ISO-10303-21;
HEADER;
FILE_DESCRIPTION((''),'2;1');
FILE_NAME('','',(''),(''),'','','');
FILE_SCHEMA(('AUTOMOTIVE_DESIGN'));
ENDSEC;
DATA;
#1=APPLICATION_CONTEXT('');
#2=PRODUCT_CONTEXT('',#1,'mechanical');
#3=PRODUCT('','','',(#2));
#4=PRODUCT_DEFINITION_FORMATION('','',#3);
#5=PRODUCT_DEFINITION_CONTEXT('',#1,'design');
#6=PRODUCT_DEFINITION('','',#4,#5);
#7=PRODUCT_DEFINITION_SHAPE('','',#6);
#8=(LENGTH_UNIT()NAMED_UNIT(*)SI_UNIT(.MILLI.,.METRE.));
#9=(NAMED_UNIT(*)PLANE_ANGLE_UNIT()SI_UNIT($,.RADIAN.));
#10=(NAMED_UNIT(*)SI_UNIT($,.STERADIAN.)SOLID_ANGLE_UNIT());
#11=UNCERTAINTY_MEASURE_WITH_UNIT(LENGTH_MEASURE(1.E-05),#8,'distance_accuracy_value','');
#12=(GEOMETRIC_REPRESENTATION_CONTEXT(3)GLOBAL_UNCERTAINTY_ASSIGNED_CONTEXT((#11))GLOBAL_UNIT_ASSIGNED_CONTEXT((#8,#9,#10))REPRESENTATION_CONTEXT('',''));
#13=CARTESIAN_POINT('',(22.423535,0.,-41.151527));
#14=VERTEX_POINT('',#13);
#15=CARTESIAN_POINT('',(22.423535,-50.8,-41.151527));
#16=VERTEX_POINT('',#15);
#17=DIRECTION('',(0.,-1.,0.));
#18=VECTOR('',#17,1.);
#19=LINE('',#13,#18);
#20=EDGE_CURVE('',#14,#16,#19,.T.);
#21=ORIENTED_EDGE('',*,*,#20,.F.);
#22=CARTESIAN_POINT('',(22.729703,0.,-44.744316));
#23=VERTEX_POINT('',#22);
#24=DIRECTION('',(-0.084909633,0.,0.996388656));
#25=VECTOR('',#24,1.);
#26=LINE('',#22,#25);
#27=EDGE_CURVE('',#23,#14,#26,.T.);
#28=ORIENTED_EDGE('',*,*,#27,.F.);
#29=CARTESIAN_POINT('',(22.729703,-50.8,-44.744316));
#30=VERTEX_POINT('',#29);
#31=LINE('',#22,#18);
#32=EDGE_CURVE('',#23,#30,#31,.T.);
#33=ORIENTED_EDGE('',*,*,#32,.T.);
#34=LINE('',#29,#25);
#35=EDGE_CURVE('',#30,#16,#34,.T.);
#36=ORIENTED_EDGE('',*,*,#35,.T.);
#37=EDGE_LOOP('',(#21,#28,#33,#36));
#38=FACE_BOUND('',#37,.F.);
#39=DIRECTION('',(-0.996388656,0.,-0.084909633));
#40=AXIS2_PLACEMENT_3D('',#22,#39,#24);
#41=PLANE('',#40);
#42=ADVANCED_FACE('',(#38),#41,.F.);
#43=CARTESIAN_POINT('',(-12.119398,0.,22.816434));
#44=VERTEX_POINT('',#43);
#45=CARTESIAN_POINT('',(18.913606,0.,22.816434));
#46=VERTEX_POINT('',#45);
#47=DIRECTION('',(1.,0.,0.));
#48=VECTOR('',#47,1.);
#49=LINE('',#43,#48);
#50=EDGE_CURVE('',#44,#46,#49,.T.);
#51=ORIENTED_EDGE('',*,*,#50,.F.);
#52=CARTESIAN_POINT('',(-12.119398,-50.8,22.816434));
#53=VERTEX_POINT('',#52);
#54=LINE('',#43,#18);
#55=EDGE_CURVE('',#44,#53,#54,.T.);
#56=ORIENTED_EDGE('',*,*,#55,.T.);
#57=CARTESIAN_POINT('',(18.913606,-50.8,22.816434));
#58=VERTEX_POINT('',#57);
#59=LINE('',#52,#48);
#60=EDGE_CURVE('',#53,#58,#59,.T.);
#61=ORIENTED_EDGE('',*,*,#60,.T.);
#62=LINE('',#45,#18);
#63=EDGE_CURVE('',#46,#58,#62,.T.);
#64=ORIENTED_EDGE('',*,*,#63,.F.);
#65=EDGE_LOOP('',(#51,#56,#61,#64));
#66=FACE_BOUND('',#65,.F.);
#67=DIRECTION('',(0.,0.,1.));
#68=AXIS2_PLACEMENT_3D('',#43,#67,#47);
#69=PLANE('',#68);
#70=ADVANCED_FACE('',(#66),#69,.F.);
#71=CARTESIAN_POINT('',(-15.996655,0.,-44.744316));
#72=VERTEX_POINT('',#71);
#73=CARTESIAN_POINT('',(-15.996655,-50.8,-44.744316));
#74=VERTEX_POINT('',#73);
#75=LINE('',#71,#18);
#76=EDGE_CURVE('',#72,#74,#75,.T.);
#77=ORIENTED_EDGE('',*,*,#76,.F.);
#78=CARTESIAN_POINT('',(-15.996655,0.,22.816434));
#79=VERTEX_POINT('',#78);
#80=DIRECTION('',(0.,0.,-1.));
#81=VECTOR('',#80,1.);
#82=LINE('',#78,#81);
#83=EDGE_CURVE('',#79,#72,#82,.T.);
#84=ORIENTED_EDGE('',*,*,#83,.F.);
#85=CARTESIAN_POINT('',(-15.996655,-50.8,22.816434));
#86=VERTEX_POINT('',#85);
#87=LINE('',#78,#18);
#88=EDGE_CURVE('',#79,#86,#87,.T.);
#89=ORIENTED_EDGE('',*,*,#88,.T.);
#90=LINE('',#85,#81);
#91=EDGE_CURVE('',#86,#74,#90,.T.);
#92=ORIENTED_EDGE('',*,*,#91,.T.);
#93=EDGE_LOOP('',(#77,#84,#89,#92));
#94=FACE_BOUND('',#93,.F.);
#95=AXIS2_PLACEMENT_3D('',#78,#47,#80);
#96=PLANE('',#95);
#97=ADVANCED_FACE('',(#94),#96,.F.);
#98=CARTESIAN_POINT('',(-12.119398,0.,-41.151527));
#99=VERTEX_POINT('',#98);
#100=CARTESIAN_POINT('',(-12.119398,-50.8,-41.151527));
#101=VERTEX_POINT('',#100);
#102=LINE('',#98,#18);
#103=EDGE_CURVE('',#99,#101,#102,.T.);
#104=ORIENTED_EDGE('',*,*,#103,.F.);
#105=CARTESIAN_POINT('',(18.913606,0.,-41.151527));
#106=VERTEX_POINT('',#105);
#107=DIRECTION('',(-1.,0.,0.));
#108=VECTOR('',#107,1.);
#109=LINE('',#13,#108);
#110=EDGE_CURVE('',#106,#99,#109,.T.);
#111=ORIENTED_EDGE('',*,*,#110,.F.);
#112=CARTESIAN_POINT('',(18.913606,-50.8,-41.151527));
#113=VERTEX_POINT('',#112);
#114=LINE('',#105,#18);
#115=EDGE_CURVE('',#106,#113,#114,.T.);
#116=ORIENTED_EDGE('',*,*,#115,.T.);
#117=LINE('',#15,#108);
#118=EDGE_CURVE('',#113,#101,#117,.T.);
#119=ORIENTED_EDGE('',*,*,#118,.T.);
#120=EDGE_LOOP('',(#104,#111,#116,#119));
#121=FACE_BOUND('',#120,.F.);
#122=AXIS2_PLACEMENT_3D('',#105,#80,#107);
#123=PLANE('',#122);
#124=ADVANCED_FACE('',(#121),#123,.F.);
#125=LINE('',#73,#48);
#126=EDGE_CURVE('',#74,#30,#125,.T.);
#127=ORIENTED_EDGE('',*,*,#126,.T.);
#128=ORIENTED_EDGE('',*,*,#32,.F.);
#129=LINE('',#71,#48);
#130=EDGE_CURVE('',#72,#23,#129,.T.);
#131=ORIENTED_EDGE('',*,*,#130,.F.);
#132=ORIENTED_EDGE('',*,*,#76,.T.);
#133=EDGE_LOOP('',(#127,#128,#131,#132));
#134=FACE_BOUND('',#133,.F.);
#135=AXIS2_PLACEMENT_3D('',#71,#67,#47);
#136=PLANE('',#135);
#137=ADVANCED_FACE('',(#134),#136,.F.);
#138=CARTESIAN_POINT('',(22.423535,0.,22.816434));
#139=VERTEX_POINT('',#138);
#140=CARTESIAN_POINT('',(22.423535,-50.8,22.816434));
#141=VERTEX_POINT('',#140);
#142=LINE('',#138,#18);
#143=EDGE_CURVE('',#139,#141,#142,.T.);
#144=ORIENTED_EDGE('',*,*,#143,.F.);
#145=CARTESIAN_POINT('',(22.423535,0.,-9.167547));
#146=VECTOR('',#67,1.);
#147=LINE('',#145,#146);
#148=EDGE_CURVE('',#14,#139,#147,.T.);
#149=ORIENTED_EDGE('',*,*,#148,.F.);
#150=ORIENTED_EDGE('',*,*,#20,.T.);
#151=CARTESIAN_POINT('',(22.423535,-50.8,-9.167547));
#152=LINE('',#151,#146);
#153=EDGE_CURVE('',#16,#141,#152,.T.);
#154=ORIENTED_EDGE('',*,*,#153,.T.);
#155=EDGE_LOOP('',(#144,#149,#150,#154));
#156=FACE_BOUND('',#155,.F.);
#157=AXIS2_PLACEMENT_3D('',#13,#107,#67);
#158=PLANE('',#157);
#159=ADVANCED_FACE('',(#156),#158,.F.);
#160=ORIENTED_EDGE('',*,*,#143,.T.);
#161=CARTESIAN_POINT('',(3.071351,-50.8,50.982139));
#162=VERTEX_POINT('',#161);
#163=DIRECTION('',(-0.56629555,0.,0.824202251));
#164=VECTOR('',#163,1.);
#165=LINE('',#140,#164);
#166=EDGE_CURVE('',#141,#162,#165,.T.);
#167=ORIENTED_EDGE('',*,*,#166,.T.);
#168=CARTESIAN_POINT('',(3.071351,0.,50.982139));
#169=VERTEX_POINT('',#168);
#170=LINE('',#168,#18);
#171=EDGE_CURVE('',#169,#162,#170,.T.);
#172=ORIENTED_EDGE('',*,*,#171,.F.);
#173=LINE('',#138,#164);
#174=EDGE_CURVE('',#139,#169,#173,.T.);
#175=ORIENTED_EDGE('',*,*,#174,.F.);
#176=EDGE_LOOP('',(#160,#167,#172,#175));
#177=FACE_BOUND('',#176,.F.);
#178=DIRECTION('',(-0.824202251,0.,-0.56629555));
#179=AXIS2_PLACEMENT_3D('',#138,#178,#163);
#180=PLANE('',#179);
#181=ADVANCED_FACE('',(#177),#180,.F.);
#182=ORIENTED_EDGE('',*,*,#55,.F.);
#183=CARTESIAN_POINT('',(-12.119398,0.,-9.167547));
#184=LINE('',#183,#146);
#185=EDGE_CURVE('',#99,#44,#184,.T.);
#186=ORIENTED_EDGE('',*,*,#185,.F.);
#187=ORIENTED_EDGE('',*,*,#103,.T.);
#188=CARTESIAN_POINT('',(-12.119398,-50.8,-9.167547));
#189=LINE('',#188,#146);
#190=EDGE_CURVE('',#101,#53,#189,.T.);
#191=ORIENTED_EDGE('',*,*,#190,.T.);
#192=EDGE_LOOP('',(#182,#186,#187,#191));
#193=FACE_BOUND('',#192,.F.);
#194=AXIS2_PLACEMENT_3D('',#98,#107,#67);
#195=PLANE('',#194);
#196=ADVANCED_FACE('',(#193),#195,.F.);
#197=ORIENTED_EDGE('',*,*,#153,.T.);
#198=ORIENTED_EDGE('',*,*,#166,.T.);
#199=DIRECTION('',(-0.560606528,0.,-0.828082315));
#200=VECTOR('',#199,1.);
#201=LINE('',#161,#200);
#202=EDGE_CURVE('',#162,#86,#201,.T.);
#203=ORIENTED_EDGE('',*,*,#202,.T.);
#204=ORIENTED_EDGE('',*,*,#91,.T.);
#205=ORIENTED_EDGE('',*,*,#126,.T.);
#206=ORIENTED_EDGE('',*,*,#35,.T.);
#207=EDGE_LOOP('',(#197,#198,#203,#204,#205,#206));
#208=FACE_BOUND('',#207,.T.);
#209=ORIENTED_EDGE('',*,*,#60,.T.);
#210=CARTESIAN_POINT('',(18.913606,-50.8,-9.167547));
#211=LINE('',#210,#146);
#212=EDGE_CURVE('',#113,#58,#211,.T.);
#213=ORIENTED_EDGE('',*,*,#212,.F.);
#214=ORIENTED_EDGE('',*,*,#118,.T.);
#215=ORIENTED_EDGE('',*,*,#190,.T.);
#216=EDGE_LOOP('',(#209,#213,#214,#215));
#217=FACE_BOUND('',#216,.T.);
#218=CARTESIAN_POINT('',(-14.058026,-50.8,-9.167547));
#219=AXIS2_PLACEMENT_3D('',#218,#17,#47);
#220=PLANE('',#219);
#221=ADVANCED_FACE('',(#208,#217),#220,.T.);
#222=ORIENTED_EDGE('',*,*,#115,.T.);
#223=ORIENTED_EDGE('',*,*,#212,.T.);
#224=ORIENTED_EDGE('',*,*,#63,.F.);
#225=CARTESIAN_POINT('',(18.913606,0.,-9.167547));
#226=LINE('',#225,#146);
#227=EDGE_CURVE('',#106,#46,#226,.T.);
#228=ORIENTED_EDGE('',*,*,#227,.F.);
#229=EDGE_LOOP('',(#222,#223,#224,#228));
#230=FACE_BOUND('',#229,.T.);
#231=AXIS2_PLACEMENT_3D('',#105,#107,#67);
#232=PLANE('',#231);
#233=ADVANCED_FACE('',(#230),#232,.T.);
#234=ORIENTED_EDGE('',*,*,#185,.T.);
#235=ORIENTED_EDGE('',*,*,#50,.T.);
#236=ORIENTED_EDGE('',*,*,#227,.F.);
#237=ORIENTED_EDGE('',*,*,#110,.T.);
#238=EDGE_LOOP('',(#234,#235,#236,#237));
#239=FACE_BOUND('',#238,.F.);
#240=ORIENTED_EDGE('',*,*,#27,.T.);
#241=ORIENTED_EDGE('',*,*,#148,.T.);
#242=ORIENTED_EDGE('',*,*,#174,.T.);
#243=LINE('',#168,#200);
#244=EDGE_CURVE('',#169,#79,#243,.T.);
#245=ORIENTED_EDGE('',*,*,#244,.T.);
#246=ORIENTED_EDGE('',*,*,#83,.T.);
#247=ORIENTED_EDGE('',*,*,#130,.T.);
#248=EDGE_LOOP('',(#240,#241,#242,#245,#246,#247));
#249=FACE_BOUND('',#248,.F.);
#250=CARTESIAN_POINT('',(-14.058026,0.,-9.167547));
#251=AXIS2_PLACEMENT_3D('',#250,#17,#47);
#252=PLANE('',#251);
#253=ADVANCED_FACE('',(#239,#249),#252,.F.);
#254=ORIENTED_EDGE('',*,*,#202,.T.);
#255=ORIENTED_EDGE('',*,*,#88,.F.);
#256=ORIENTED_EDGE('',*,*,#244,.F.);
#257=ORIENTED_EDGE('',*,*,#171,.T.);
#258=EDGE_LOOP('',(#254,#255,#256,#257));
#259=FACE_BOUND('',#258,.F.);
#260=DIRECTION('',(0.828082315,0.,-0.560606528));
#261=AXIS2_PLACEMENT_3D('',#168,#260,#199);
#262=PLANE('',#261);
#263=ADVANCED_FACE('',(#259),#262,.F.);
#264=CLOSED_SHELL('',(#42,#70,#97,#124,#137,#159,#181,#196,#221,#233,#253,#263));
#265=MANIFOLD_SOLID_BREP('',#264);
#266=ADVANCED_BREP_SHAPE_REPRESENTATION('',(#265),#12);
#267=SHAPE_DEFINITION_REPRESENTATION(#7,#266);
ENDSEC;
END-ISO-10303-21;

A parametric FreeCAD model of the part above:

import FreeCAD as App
import Part
import Sketcher
Q = App.Units.Quantity


def add_polygon(sketch, points):
    """Adds a closed chain of lines whose ends are joined by coincident constraints."""
    first, n = sketch.GeometryCount, len(points)
    for a, b in zip(points, points[1:] + points[:1]):
        sketch.addGeometry(Part.LineSegment(App.Vector(*a, 0), App.Vector(*b, 0)), False)
    for i in range(n):
        sketch.addConstraint(Sketcher.Constraint("Coincident", first + i, 2, first + (i + 1) % n, 1))

doc = App.newDocument("Part")
body = doc.addObject("PartDesign::Body", "Body")

sketch1 = body.newObject("Sketcher::SketchObject", "Sketch")
sketch1.AttachmentSupport = (doc.getObject("XZ_Plane"), [""])
sketch1.MapMode = "FlatFace"
add_polygon(sketch1, [(-16, 22.8), (-16, -44.7), (22.7, -44.7), (22.4, -41.2), (22.4, 22.8), (3.1, 51)])
add_polygon(sketch1, [(18.9, -41.2), (-12.1, -41.2), (-12.1, 22.8), (18.9, 22.8)])
sketch1.addConstraint(Sketcher.Constraint("Vertical", 0))
sketch1.addConstraint(Sketcher.Constraint("Horizontal", 1))
sketch1.addConstraint(Sketcher.Constraint("Vertical", 3))
sketch1.addConstraint(Sketcher.Constraint("Horizontal", 6))
sketch1.addConstraint(Sketcher.Constraint("Vertical", 7))
sketch1.addConstraint(Sketcher.Constraint("Horizontal", 8))
sketch1.addConstraint(Sketcher.Constraint("Vertical", 9))
sketch1.addConstraint(Sketcher.Constraint("Horizontal", 3, 2, 5, 2))
sketch1.addConstraint(Sketcher.Constraint("Horizontal", 2, 2, 6, 2))
sketch1.addConstraint(Sketcher.Constraint("Horizontal", 5, 2, 7, 2))
sketch1.addConstraint(Sketcher.Constraint("DistanceY", 0, 2, 0, 1, 67.56075))
sketch1.addConstraint(Sketcher.Constraint("DistanceY", 3, 1, 3, 2, 63.967961))
sketch1.addConstraint(Sketcher.Constraint("DistanceX", 6, 2, 1, 2, 34.849101))
sketch1.addConstraint(Sketcher.Constraint("Distance", 2, 3.605811))
sketch1.addConstraint(Sketcher.Constraint("Distance", 5, 34.013171))
sketch1.addConstraint(Sketcher.Constraint("DistanceX", 1, 1, 1, 2, 38.726358))
sketch1.addConstraint(Sketcher.Constraint("DistanceX", 6, 2, 6, 1, 31.033004))
sketch1.addConstraint(Sketcher.Constraint("DistanceX", -1, 1, 4, 2, 3.071351))
sketch1.addConstraint(Sketcher.Constraint("DistanceY", -1, 1, 4, 2, 50.982139))
sketch1.addConstraint(Sketcher.Constraint("DistanceX", 7, 2, 4, 2, 15.190749))
pad1 = body.newObject("PartDesign::Pad", "Pad")
pad1.Profile = sketch1
pad1.Length = Q("2 in")

doc.recompute()
